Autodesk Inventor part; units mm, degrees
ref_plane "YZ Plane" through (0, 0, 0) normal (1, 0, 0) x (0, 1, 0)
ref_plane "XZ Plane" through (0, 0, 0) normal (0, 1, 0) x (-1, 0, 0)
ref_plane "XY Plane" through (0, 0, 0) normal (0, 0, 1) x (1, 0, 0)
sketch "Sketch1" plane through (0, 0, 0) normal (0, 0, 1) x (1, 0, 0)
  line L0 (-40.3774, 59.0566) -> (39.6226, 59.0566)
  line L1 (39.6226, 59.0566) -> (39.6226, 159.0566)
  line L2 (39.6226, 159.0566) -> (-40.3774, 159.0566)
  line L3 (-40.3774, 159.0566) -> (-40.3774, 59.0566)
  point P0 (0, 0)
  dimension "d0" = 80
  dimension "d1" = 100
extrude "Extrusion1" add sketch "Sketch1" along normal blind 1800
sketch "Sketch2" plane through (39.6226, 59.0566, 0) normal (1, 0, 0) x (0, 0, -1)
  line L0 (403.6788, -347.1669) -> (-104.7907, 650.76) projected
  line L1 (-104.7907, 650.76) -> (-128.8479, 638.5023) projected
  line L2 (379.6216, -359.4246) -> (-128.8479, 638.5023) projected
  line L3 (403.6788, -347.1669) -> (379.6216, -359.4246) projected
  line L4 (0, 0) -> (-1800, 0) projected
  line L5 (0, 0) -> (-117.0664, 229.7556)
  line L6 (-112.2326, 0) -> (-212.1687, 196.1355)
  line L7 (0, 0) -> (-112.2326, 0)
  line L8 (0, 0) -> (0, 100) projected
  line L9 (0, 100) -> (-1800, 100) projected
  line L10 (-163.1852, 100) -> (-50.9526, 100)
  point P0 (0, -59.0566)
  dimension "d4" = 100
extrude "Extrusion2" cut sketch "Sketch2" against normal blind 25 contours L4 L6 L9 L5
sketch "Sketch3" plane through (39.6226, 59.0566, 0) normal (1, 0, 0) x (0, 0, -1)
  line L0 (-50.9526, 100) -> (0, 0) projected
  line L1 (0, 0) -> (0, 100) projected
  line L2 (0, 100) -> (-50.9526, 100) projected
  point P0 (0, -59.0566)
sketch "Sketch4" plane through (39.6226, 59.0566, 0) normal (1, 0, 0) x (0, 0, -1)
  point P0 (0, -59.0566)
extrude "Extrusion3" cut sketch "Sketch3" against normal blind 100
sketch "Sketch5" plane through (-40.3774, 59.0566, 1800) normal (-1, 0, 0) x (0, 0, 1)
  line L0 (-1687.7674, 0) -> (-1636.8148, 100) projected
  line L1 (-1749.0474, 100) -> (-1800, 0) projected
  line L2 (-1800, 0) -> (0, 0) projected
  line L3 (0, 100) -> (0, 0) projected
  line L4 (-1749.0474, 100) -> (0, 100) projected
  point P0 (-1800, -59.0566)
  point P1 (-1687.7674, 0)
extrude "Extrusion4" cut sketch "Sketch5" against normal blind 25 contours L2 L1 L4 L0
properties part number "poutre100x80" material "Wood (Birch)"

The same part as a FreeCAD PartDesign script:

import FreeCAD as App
import Part
import Sketcher
from FreeCAD import Vector
Q = App.Units.Quantity

doc = App.newDocument("Part")
body = doc.addObject("PartDesign::Body", "Body")

# Sketch on XY plane
sketch1 = body.newObject("Sketcher::SketchObject", "Sketch")
sketch1.AttachmentSupport = (doc.getObject("XY_Plane"), [""])
sketch1.MapMode = "FlatFace"
sketch1.addGeometry([
    Part.LineSegment(Vector(-40, 159, 0), Vector(-40, 59, 0)),
    Part.LineSegment(Vector(-40, 59, 0), Vector(40, 59, 0)),
    Part.LineSegment(Vector(40, 59, 0), Vector(40, 159, 0)),
    Part.LineSegment(Vector(40, 159, 0), Vector(-40, 159, 0)),
], False)
sketch1.addConstraint([
    Sketcher.Constraint("Coincident", 0, 2, 1, 1),
    Sketcher.Constraint("Coincident", 1, 2, 2, 1),
    Sketcher.Constraint("Coincident", 2, 2, 3, 1),
    Sketcher.Constraint("Coincident", 3, 2, 0, 1),
    Sketcher.Constraint("Vertical", 0),
    Sketcher.Constraint("Horizontal", 1),
    Sketcher.Constraint("Vertical", 2),
    Sketcher.Constraint("Horizontal", 3),
    Sketcher.Constraint("DistanceX", 1, 1, 1, 2, 80.0),
    Sketcher.Constraint("DistanceY", 0, 2, 0, 1, 100.0),
    Sketcher.Constraint("DistanceX", 0, 2, -1, 1, 40.3774),
    Sketcher.Constraint("DistanceY", -1, 1, 0, 2, 59.0566),
])
pad1 = body.newObject("PartDesign::Pad", "Pad")
pad1.Profile = sketch1
pad1.Length = 1800

# Sketch on YZ plane
sketch2 = body.newObject("Sketcher::SketchObject", "Sketch001")
sketch2.AttachmentSupport = (doc.getObject("YZ_Plane"), [""])
sketch2.MapMode = "FlatFace"
sketch2.AttachmentOffset = App.Placement(Vector(0, 0, 39.6226), App.Rotation())
sketch2.addGeometry([
    Part.LineSegment(Vector(59, 112, 0), Vector(59, 0, 0)),
    Part.LineSegment(Vector(59, 0, 0), Vector(159, 51, 0)),
    Part.LineSegment(Vector(159, 51, 0), Vector(159, 163, 0)),
    Part.LineSegment(Vector(159, 163, 0), Vector(59, 112, 0)),
], False)
sketch2.addConstraint([
    Sketcher.Constraint("Coincident", 0, 2, 1, 1),
    Sketcher.Constraint("Coincident", 1, 2, 2, 1),
    Sketcher.Constraint("Coincident", 2, 2, 3, 1),
    Sketcher.Constraint("Coincident", 3, 2, 0, 1),
    Sketcher.Constraint("Vertical", 0),
    Sketcher.Constraint("Vertical", 2),
    Sketcher.Constraint("PointOnObject", 0, 2, -1),
    Sketcher.Constraint("Parallel", 1, 3),
    Sketcher.Constraint("DistanceX", 0, 2, 1, 2, 100.0),
    Sketcher.Constraint("Angle", 1, Q("27 deg")),
    Sketcher.Constraint("DistanceY", 1, 2, 3, 2, 61.28),
    Sketcher.Constraint("DistanceX", -1, 1, 0, 2, 59.0566),
])
pocket1 = body.newObject("PartDesign::Pocket", "Pocket")
pocket1.Profile = sketch2
pocket1.Length = 25

# Sketch on YZ plane
sketch3 = body.newObject("Sketcher::SketchObject", "Sketch002")
sketch3.AttachmentSupport = (doc.getObject("YZ_Plane"), [""])
sketch3.MapMode = "FlatFace"
sketch3.AttachmentOffset = App.Placement(Vector(0, 0, 39.6226), App.Rotation())
sketch3.addGeometry([
    Part.LineSegment(Vector(159, 0, 0), Vector(159, 51, 0)),
    Part.LineSegment(Vector(159, 51, 0), Vector(59, 0, 0)),
    Part.LineSegment(Vector(59, 0, 0), Vector(159, 0, 0)),
], False)
sketch3.addConstraint([
    Sketcher.Constraint("Coincident", 0, 2, 1, 1),
    Sketcher.Constraint("Coincident", 1, 2, 2, 1),
    Sketcher.Constraint("Coincident", 2, 2, 0, 1),
    Sketcher.Constraint("Vertical", 0),
    Sketcher.Constraint("Horizontal", 2),
    Sketcher.Constraint("PointOnObject", 1, 2, -1),
    Sketcher.Constraint("DistanceX", 2, 1, 2, 2, 100.0),
    Sketcher.Constraint("Angle", 1, Q("-153 deg")),
    Sketcher.Constraint("DistanceX", -1, 1, 0, 2, 159.0566),
])
pocket2 = body.newObject("PartDesign::Pocket", "Pocket001")
pocket2.Profile = sketch3
pocket2.Length = 100

# Sketch on YZ plane
sketch4 = body.newObject("Sketcher::SketchObject", "Sketch003")
sketch4.AttachmentSupport = (doc.getObject("YZ_Plane"), [""])
sketch4.MapMode = "FlatFace"
sketch4.AttachmentOffset = App.Placement(Vector(0, 0, -40.3774), App.Rotation())
sketch4.addGeometry([
    Part.LineSegment(Vector(59, 0, 0), Vector(59, 112, 0)),
    Part.LineSegment(Vector(59, 112, 0), Vector(159, 163, 0)),
    Part.LineSegment(Vector(159, 163, 0), Vector(159, 51, 0)),
    Part.LineSegment(Vector(159, 51, 0), Vector(59, 0, 0)),
], False)
sketch4.addConstraint([
    Sketcher.Constraint("Coincident", 0, 2, 1, 1),
    Sketcher.Constraint("Coincident", 1, 2, 2, 1),
    Sketcher.Constraint("Coincident", 2, 2, 3, 1),
    Sketcher.Constraint("Coincident", 3, 2, 0, 1),
    Sketcher.Constraint("Vertical", 0),
    Sketcher.Constraint("Vertical", 2),
    Sketcher.Constraint("PointOnObject", 3, 2, -1),
    Sketcher.Constraint("Parallel", 1, 3),
    Sketcher.Constraint("Angle", 1, Q("27 deg")),
    Sketcher.Constraint("DistanceX", 0, 2, 1, 2, 100.0),
    Sketcher.Constraint("DistanceY", 2, 2, 0, 2, 61.28),
    Sketcher.Constraint("DistanceX", -1, 1, 0, 2, 59.0566),
])
pocket3 = body.newObject("PartDesign::Pocket", "Pocket002")
pocket3.Profile = sketch4
pocket3.Length = 25
pocket3.Reversed = True

doc.recompute()
